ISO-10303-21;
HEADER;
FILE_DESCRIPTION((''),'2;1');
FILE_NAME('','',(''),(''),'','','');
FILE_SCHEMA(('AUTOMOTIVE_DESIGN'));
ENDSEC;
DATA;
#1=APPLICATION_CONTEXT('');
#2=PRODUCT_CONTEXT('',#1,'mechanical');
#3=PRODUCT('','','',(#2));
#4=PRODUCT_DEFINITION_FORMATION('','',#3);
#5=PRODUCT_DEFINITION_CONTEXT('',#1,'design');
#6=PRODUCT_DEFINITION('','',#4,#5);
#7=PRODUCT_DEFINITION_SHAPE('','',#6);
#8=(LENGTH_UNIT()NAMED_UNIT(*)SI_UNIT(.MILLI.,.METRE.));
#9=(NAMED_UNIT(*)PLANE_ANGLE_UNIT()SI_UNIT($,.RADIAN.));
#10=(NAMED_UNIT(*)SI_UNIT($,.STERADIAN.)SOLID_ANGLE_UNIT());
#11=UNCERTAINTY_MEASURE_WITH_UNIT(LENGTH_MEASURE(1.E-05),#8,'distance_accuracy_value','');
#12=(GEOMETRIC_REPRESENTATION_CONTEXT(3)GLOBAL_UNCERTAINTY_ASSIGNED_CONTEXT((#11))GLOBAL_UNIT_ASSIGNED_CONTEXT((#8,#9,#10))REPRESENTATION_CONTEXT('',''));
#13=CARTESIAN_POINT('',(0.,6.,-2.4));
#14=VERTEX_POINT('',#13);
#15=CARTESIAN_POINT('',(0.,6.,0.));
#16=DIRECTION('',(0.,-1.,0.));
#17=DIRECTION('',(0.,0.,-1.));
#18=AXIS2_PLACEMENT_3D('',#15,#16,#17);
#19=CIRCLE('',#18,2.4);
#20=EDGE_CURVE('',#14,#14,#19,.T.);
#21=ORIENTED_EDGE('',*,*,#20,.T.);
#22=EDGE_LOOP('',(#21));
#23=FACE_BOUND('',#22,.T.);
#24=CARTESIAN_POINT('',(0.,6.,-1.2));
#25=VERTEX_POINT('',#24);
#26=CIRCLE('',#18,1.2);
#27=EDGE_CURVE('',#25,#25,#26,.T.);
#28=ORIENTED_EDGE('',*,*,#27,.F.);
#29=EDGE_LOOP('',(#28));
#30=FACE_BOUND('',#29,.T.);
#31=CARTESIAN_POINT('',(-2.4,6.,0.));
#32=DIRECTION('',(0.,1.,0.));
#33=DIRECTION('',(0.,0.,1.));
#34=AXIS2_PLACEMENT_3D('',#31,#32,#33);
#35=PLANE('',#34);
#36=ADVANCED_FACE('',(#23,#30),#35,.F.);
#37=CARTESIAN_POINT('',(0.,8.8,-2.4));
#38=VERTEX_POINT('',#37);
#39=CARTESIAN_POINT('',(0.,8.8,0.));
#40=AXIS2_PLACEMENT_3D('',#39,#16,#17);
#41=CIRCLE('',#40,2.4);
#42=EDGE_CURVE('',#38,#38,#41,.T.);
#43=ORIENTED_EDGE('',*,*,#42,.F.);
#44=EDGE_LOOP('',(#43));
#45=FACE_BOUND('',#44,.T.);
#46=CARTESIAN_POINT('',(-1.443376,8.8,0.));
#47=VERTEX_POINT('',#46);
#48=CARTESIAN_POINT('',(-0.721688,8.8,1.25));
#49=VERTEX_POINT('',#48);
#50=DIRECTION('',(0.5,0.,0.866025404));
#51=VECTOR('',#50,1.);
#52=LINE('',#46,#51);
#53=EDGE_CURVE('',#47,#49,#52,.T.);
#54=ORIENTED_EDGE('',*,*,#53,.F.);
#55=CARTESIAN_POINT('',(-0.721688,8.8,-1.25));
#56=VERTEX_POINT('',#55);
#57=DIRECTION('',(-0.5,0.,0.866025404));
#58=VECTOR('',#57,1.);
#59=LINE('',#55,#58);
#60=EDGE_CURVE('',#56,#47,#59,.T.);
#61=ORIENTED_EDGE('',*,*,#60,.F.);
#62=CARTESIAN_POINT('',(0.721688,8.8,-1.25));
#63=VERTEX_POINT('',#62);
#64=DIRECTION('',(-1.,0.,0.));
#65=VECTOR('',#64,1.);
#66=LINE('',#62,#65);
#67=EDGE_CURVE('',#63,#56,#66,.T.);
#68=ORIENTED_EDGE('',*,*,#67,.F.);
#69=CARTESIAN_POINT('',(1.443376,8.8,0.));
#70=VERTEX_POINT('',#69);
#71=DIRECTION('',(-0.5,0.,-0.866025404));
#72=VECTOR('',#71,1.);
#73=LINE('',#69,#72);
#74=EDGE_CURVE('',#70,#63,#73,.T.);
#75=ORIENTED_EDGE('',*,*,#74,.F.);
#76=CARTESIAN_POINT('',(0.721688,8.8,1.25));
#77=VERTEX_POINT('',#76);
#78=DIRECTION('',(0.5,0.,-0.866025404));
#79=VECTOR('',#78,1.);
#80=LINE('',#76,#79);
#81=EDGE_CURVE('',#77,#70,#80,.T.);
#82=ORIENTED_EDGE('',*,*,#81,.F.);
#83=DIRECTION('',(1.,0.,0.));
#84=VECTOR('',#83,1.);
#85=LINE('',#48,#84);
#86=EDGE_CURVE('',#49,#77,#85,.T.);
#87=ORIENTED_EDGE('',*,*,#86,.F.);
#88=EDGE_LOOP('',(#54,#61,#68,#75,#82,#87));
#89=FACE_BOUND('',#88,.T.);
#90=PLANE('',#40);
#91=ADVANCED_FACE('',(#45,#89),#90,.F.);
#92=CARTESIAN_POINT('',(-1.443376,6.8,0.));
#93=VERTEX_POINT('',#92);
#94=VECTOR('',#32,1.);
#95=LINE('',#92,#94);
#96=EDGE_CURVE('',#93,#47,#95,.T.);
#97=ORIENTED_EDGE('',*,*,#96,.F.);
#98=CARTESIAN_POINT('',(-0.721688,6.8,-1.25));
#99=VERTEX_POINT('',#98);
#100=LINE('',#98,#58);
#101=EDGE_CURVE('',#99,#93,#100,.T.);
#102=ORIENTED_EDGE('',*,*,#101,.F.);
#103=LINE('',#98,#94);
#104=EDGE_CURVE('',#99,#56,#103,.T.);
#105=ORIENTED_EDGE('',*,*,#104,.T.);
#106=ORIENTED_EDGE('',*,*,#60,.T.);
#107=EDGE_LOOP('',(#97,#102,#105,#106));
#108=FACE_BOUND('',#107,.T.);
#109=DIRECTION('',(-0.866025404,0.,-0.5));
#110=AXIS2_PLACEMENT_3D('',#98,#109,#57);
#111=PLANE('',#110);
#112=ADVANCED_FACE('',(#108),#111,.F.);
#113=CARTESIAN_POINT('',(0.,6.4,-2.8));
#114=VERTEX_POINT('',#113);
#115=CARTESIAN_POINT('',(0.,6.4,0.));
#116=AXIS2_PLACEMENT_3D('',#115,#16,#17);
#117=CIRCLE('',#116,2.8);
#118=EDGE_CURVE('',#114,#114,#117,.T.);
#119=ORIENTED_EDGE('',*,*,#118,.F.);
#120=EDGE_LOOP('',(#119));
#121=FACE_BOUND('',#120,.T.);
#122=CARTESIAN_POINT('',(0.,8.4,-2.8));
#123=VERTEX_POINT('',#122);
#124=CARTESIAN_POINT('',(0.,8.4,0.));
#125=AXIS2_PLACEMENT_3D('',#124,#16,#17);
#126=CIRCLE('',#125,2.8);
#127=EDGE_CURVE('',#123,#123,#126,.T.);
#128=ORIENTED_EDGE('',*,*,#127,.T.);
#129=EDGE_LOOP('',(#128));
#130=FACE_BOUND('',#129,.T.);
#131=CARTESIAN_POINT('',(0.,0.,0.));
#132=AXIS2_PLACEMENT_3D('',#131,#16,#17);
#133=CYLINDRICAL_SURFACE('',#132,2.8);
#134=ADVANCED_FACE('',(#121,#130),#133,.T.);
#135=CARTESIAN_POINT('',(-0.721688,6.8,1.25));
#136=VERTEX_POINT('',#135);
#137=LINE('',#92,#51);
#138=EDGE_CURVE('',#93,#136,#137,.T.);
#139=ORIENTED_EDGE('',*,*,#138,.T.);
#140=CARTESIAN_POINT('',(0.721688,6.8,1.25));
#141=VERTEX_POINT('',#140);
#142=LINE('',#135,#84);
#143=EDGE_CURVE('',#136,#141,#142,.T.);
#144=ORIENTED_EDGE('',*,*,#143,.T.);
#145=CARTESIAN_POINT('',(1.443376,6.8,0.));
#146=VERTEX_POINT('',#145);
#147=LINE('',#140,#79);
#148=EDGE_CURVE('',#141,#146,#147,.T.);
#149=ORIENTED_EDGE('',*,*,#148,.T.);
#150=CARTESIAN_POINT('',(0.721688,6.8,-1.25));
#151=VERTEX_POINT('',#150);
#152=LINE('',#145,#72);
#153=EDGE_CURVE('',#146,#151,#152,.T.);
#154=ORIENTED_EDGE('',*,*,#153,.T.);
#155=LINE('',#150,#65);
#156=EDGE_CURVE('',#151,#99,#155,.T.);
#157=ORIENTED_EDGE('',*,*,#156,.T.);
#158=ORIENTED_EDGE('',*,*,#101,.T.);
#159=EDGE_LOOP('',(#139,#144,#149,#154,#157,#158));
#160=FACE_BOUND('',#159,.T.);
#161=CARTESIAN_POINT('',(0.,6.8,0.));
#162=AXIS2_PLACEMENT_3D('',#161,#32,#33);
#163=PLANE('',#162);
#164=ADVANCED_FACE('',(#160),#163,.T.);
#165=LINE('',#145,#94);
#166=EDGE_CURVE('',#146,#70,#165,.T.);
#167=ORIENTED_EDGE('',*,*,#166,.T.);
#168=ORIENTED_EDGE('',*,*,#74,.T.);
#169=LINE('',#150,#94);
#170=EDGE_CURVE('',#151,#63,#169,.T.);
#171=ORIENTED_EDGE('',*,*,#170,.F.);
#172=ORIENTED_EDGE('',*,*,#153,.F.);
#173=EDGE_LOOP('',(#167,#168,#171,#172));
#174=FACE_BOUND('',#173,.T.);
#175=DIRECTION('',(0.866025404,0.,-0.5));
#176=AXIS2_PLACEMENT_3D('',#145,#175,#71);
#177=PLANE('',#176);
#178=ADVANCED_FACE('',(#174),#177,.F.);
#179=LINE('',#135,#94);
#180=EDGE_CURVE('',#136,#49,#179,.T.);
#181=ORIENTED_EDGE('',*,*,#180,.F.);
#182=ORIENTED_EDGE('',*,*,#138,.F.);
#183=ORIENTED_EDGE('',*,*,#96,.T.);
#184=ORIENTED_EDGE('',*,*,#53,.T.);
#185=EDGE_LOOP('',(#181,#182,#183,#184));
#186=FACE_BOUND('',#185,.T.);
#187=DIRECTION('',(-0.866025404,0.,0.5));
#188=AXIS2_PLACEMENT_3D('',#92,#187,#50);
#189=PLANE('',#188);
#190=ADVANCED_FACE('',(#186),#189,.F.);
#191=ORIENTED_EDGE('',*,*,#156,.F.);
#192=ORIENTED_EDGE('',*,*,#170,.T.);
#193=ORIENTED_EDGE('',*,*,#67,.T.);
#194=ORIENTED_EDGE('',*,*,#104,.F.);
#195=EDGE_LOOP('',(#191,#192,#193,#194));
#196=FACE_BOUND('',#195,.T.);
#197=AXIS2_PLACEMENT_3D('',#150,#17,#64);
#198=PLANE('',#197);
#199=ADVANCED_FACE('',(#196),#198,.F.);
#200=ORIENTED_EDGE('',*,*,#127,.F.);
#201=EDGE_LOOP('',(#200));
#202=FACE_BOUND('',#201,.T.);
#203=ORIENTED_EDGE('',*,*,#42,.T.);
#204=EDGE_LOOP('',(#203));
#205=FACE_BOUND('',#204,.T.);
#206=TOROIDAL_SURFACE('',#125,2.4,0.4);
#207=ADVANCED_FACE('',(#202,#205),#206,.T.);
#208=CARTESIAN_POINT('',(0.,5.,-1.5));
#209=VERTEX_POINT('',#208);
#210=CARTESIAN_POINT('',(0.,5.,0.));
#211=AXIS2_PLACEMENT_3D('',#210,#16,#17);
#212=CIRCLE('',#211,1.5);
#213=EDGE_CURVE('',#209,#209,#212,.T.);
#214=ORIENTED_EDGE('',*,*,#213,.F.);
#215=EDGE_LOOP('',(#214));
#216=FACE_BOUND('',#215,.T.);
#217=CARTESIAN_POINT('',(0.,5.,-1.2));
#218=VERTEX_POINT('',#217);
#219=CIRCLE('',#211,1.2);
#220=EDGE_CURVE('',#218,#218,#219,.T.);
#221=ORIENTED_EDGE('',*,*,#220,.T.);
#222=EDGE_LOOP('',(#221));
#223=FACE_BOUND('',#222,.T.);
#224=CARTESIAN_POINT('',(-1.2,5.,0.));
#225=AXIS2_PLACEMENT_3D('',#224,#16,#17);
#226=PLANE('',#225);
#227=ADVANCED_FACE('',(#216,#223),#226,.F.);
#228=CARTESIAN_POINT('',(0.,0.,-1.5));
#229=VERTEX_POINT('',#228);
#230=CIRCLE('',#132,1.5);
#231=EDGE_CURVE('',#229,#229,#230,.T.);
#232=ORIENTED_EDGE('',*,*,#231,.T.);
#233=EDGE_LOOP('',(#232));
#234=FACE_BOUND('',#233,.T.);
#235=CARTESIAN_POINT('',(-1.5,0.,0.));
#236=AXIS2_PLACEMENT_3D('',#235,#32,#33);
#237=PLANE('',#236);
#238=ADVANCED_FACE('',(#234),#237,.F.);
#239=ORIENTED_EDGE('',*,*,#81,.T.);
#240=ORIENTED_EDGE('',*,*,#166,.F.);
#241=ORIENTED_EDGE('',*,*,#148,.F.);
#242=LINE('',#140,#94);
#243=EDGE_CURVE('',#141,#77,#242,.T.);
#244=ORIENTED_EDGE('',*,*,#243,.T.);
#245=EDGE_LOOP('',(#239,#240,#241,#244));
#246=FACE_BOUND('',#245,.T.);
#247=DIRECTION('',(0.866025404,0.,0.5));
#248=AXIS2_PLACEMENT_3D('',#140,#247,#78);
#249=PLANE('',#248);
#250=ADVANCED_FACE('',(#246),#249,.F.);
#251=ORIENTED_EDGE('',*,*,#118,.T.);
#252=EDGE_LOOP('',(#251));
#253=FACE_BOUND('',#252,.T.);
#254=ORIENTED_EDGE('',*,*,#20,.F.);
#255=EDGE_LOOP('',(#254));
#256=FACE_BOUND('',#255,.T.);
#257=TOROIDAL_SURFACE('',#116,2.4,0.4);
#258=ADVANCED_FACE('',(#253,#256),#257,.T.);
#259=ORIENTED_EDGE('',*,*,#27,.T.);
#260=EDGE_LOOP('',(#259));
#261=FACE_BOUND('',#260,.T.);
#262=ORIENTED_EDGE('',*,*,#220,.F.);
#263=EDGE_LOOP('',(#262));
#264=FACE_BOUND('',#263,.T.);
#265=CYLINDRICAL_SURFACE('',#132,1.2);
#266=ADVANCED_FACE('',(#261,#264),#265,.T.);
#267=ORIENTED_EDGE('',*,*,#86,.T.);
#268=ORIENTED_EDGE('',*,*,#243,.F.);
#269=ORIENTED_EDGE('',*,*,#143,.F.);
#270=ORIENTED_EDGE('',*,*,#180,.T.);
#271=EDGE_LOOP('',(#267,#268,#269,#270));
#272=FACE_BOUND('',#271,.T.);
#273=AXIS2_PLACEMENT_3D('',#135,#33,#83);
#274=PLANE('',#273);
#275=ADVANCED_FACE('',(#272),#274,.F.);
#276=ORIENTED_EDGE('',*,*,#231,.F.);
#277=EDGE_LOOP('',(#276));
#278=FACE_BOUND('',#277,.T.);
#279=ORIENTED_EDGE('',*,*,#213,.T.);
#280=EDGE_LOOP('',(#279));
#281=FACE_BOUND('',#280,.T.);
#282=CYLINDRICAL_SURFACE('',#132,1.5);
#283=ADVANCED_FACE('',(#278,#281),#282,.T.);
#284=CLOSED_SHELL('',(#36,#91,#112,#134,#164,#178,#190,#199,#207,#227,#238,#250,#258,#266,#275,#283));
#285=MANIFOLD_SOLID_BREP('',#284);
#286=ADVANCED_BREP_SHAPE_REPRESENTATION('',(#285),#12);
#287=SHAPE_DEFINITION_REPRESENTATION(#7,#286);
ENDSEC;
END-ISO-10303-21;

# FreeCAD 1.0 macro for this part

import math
import FreeCAD as App
import Part
import Sketcher
from FreeCAD import Vector
Q = App.Units.Quantity

doc = App.newDocument("Part")
body = doc.addObject("PartDesign::Body", "Body")

sketch1 = body.newObject("Sketcher::SketchObject", "Sketch")
sketch1.AttachmentSupport = (doc.getObject("XY_Plane"), [""])
sketch1.MapMode = "FlatFace"
sketch1.addGeometry([
    Part.LineSegment(Vector(0, 8.8, 0), Vector(-2.4, 8.8, 0)),
    Part.ArcOfCircle(Part.Circle(Vector(-2.4, 8.4, 0), Vector(0, 0, 1), 0.4), math.radians(90), math.radians(180)),
    Part.LineSegment(Vector(-2.8, 8.4, 0), Vector(-2.8, 6.4, 0)),
    Part.ArcOfCircle(Part.Circle(Vector(-2.4, 6.4, 0), Vector(0, 0, 1), 0.4), math.radians(-180), math.radians(-90)),
    Part.LineSegment(Vector(-2.4, 6, 0), Vector(-1.2, 6, 0)),
    Part.LineSegment(Vector(-1.2, 6, 0), Vector(-1.2, 5, 0)),
    Part.LineSegment(Vector(-1.2, 5, 0), Vector(-1.5, 5, 0)),
    Part.LineSegment(Vector(-1.5, 5, 0), Vector(-1.5, 0, 0)),
    Part.LineSegment(Vector(-1.5, 0, 0), Vector(0, 0, 0)),
    Part.LineSegment(Vector(0, 0, 0), Vector(0, 8.8, 0)),
], False)
sketch1.addConstraint([
    Sketcher.Constraint("Tangent", 0, 2, 1, 1),
    Sketcher.Constraint("Tangent", 1, 2, 2, 1),
    Sketcher.Constraint("Tangent", 2, 2, 3, 1),
    Sketcher.Constraint("Tangent", 3, 2, 4, 1),
    Sketcher.Constraint("Coincident", 4, 2, 5, 1),
    Sketcher.Constraint("Coincident", 5, 2, 6, 1),
    Sketcher.Constraint("Coincident", 6, 2, 7, 1),
    Sketcher.Constraint("Coincident", 7, 2, 8, 1),
    Sketcher.Constraint("Coincident", 8, 2, 9, 1),
    Sketcher.Constraint("Coincident", 9, 2, 0, 1),
    Sketcher.Constraint("Horizontal", 0),
    Sketcher.Constraint("Vertical", 2),
    Sketcher.Constraint("Horizontal", 4),
    Sketcher.Constraint("Vertical", 5),
    Sketcher.Constraint("Horizontal", 6),
    Sketcher.Constraint("Vertical", 7),
    Sketcher.Constraint("Horizontal", 8),
    Sketcher.Constraint("Vertical", 9),
    Sketcher.Constraint("Coincident", 8, 2, -1, 1),
    Sketcher.Constraint("Equal", 1, 3),
    Sketcher.Constraint("Radius", 1, Q("0.4 mm")),
    Sketcher.Constraint("DistanceY", 2, 2, 2, 1, Q("2 mm")),
    Sketcher.Constraint("DistanceY", 5, 2, 5, 1, Q("1 mm")),
    Sketcher.Constraint("DistanceY", 7, 2, 7, 1, Q("5 mm")),
    Sketcher.Constraint("DistanceX", 0, 2, 0, 1, Q("2.4 mm")),
    Sketcher.Constraint("DistanceX", 4, 1, 4, 2, Q("1.2 mm")),
    Sketcher.Constraint("DistanceX", 6, 2, 6, 1, Q("0.3 mm")),
])
revolution = body.newObject("PartDesign::Revolution", "Revolution")
revolution.Profile = sketch1
revolution.ReferenceAxis = (sketch1, ["V_Axis"])
revolution.Angle = 360

sketch2 = body.newObject("Sketcher::SketchObject", "Sketch001")
sketch2.AttachmentSupport = (doc.getObject("XZ_Plane"), [""])
sketch2.MapMode = "FlatFace"
sketch2.AttachmentOffset = App.Placement(Vector(0, 0, -8.8), App.Rotation())
sketch2.addGeometry([
    Part.LineSegment(Vector(-0.7, -1.2, 0), Vector(-1.4, 0, 0)),
    Part.LineSegment(Vector(-1.4, 0, 0), Vector(-0.7, 1.2, 0)),
    Part.LineSegment(Vector(-0.7, 1.2, 0), Vector(0.7, 1.2, 0)),
    Part.LineSegment(Vector(0.7, 1.2, 0), Vector(1.4, 0, 0)),
    Part.LineSegment(Vector(1.4, 0, 0), Vector(0.7, -1.2, 0)),
    Part.LineSegment(Vector(0.7, -1.2, 0), Vector(-0.7, -1.2, 0)),
], False)
sketch2.addConstraint([
    Sketcher.Constraint("Coincident", 0, 2, 1, 1),
    Sketcher.Constraint("Coincident", 1, 2, 2, 1),
    Sketcher.Constraint("Coincident", 2, 2, 3, 1),
    Sketcher.Constraint("Coincident", 3, 2, 4, 1),
    Sketcher.Constraint("Coincident", 4, 2, 5, 1),
    Sketcher.Constraint("Coincident", 5, 2, 0, 1),
    Sketcher.Constraint("Horizontal", 2),
    Sketcher.Constraint("Horizontal", 5),
    Sketcher.Constraint("Symmetric", 0, 2, 3, 2, -1, 1),
    Sketcher.Constraint("Symmetric", 1, 2, 4, 2, -1, 1),
    Sketcher.Constraint("PointOnObject", 0, 2, -1),
    Sketcher.Constraint("Parallel", 0, 3),
    Sketcher.Constraint("Vertical", 2, 2, 4, 2),
    Sketcher.Constraint("Angle", 0, Q("120 deg")),
    Sketcher.Constraint("DistanceY", 4, 2, 2, 2, Q("2.5 mm")),
    Sketcher.Constraint("DistanceX", 2, 1, 2, 2, Q("1.443376 mm")),
])
pocket1 = body.newObject("PartDesign::Pocket", "Pocket")
pocket1.Profile = sketch2
pocket1.Length = 2
pocket1.Reversed = True

doc.recompute()
